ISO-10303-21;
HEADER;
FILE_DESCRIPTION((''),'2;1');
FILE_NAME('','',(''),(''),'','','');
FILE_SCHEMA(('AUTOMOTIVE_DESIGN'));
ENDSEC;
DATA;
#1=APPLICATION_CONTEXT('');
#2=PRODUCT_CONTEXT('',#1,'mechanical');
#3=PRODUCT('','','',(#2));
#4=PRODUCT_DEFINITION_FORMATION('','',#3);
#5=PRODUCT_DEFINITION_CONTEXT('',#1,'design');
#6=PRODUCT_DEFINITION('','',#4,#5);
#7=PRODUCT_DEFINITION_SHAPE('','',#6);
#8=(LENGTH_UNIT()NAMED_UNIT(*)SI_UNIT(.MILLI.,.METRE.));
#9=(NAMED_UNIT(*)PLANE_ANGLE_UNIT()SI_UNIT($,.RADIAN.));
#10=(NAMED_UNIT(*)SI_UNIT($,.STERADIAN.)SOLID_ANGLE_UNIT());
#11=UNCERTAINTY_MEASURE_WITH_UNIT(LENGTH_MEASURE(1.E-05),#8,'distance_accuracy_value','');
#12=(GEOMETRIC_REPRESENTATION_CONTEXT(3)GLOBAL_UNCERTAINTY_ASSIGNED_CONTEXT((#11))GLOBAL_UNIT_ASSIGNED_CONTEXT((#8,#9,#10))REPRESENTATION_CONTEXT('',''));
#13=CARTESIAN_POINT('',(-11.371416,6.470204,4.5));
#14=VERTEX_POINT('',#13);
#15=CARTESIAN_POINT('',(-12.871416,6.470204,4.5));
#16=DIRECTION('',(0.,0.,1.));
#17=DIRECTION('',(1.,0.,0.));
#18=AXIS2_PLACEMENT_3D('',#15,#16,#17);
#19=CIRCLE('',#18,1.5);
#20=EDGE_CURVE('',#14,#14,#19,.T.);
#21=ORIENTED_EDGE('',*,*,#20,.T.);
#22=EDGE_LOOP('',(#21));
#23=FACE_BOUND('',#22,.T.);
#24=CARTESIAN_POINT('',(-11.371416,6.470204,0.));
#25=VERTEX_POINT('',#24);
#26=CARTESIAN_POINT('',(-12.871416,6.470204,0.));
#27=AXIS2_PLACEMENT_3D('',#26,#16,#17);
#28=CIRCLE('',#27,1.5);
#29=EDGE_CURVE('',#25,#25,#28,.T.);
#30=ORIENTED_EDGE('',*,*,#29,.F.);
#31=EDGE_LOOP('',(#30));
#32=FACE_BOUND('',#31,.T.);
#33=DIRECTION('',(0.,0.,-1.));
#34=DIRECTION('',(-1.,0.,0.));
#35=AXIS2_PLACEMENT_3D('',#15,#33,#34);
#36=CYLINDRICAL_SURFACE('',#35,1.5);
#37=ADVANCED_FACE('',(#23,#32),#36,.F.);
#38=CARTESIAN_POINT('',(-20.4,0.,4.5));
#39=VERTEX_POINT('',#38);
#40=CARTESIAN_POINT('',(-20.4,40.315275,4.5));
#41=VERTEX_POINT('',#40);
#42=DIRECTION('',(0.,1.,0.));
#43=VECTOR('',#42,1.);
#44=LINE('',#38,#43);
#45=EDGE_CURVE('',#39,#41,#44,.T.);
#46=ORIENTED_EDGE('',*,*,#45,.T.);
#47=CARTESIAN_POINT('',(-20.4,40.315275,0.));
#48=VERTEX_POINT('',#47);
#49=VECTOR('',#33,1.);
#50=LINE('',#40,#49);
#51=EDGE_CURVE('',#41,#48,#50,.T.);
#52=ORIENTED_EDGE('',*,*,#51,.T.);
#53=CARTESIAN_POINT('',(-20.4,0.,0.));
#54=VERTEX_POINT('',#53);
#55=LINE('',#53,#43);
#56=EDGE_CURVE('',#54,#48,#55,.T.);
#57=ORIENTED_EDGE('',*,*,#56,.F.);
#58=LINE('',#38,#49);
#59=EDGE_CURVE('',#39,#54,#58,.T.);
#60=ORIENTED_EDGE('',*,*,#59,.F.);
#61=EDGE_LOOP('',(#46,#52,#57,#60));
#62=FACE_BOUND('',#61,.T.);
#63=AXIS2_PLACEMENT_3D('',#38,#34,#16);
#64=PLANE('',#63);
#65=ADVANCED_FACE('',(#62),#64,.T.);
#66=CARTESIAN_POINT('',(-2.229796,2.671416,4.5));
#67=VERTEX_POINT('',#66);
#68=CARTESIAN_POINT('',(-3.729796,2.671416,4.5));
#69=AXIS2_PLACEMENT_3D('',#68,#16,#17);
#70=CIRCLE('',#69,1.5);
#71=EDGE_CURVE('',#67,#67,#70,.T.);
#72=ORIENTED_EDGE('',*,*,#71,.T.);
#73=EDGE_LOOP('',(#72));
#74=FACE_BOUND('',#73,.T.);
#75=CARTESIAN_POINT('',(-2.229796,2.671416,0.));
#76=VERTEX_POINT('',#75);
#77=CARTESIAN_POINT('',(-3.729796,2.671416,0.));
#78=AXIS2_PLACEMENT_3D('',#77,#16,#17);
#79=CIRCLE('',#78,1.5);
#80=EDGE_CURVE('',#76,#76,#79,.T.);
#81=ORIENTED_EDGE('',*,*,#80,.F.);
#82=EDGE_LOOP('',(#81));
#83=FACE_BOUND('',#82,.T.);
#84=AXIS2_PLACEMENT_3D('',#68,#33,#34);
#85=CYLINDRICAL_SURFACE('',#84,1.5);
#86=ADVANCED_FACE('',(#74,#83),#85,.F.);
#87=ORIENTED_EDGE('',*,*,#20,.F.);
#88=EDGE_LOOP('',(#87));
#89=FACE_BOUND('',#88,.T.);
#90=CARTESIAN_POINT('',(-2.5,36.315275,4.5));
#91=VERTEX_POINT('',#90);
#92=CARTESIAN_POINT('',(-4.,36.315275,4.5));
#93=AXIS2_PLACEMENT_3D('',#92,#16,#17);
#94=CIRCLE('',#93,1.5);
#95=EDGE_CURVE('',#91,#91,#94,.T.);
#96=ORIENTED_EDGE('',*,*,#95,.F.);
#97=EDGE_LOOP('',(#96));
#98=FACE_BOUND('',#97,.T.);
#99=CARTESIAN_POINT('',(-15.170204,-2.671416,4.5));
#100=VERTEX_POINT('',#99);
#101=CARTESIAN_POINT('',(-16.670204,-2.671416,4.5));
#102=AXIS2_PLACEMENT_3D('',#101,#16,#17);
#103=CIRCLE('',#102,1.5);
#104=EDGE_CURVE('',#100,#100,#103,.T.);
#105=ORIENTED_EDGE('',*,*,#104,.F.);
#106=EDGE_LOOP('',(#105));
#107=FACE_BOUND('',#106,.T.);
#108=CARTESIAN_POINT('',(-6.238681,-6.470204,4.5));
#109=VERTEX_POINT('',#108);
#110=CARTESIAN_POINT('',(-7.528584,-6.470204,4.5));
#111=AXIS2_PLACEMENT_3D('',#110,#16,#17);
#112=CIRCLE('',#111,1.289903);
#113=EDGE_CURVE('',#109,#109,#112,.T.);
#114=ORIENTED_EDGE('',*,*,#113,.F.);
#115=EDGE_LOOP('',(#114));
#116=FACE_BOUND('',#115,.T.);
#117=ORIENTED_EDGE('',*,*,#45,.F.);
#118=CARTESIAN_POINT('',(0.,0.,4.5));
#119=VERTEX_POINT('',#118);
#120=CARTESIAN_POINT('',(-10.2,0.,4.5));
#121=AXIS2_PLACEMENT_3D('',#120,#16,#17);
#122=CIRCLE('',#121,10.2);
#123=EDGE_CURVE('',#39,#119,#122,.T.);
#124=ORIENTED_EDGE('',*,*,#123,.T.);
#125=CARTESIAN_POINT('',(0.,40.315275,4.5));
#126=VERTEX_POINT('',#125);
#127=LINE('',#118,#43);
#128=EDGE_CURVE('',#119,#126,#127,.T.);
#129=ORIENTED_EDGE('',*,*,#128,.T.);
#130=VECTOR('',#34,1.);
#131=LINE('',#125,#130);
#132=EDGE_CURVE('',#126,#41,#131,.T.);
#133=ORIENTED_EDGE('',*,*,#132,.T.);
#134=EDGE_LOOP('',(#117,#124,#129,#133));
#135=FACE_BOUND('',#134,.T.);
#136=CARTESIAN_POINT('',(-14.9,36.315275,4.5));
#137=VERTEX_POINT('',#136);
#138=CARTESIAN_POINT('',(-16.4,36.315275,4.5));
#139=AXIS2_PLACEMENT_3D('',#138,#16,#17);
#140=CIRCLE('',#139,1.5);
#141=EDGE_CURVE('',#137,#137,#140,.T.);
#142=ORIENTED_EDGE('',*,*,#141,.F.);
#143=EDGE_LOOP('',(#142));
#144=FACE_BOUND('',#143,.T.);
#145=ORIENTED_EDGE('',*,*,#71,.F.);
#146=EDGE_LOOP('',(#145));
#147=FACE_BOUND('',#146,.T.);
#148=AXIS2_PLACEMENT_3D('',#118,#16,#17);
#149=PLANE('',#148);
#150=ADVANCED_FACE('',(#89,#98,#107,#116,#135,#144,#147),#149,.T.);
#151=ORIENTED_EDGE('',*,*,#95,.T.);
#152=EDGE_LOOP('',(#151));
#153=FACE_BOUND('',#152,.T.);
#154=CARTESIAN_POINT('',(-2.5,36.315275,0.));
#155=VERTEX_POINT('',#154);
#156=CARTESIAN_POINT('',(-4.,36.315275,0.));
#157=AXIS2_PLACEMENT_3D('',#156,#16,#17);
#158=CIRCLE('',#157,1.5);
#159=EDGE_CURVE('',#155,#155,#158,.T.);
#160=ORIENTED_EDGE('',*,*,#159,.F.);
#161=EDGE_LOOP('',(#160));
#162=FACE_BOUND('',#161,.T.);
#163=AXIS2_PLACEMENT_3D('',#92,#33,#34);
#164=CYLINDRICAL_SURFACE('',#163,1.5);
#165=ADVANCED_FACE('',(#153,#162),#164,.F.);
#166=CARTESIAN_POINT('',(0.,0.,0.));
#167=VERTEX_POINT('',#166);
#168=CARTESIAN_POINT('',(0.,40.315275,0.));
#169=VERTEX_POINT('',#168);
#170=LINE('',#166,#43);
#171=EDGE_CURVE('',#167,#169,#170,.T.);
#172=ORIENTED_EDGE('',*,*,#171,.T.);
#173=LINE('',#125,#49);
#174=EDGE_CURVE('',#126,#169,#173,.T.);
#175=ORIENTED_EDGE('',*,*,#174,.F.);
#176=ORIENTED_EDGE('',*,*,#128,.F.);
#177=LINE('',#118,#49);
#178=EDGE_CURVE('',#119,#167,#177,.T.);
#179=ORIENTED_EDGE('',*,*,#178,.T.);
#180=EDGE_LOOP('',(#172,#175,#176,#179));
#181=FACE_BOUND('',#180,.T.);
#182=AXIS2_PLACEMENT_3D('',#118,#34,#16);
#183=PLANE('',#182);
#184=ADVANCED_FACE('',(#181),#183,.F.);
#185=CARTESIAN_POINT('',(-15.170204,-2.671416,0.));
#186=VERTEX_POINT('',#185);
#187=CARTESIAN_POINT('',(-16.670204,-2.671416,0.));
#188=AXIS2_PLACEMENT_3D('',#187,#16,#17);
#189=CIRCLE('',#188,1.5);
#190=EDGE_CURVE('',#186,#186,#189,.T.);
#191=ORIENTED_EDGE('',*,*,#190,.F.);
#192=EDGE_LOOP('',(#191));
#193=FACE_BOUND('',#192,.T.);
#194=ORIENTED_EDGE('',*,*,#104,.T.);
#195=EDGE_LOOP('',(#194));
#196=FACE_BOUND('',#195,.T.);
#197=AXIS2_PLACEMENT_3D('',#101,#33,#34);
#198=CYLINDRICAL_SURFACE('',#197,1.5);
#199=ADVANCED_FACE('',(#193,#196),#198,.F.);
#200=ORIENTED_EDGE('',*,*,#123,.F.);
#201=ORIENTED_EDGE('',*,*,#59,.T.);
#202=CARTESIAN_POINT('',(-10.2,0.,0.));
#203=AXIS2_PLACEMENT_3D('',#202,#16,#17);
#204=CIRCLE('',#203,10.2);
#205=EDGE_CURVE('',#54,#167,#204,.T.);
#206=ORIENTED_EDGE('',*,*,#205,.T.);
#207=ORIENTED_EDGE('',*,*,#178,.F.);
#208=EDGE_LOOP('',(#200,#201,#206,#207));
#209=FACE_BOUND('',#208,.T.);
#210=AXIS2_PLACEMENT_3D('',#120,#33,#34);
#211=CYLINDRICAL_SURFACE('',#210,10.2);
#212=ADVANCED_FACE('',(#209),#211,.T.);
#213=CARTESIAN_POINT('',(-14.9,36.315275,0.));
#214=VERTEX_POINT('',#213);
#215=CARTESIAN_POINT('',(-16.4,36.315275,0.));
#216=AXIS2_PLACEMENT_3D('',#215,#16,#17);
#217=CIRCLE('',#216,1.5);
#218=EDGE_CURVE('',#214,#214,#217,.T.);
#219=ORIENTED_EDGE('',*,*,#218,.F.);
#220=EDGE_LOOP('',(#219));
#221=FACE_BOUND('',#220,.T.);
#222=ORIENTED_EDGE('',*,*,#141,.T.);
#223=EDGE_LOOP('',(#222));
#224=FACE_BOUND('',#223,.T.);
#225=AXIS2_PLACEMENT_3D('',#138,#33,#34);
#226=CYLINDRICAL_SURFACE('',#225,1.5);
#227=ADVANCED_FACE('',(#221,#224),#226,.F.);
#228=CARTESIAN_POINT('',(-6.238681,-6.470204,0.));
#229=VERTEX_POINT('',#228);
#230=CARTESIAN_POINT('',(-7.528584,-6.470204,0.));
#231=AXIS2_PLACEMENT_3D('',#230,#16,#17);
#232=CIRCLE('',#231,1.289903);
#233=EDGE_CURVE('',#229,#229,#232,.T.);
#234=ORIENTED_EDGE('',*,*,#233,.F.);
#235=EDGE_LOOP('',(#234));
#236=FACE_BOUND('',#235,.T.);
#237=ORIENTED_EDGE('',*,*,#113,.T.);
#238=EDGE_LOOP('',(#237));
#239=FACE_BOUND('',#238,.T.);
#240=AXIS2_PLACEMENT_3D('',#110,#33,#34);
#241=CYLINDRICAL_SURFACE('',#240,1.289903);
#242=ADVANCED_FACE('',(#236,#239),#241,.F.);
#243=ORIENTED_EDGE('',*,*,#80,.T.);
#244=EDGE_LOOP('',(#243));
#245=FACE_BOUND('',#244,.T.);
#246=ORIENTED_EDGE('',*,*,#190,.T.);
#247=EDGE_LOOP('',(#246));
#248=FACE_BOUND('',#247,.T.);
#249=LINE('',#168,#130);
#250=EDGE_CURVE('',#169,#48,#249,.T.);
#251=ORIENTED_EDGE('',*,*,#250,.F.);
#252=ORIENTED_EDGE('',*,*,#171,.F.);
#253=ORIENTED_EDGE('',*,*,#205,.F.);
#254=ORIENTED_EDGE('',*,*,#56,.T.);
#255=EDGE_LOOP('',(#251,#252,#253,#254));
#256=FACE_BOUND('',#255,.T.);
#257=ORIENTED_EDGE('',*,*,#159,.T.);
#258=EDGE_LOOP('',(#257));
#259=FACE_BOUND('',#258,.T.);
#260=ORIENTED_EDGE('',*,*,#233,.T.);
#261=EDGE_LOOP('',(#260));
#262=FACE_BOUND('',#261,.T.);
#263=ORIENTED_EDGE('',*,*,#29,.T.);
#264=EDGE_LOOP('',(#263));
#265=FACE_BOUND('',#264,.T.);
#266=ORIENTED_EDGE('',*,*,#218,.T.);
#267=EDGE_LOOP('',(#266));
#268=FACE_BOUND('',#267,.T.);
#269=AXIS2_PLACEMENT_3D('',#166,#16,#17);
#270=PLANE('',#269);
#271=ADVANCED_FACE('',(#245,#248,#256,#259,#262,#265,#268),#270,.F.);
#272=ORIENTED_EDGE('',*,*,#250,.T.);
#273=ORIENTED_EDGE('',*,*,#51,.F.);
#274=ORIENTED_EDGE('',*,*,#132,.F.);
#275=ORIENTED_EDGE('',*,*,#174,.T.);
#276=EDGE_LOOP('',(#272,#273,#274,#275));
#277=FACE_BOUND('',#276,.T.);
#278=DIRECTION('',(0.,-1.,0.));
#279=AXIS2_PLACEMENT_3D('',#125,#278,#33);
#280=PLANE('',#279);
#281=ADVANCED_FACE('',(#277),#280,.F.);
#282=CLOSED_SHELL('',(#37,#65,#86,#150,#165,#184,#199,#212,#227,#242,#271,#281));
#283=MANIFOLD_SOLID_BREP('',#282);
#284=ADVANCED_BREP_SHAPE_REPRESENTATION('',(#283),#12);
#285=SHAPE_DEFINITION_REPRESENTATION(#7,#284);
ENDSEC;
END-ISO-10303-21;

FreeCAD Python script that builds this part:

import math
import FreeCAD as App
import Part
import Sketcher

V = App.Vector

doc = App.newDocument("Part")
body = doc.addObject("PartDesign::Body", "Body")

sketch1 = body.newObject("Sketcher::SketchObject", "Sketch")
sketch1.AttachmentSupport = (doc.getObject("XY_Plane"), [""])
sketch1.MapMode = "FlatFace"
sketch1.addGeometry([
    Part.LineSegment(V(-20.4, 40.3, 0), V(-20.4, 0, 0)),
    Part.ArcOfCircle(Part.Circle(V(-10.2, 0, 0), V(0, 0, 1), 10.2), math.radians(180), math.radians(360)),
    Part.LineSegment(V(0, 0, 0), V(0, 40.3, 0)),
    Part.LineSegment(V(0, 40.3, 0), V(-20.4, 40.3, 0)),
    Part.Circle(V(-16.4, 36.3, 0), V(0, 0, 1), 1.5),
    Part.Circle(V(-4, 36.3, 0), V(0, 0, 1), 1.5),
    Part.Circle(V(-12.9, 6.5, 0), V(0, 0, 1), 1.5),
    Part.Circle(V(-3.7, 2.7, 0), V(0, 0, 1), 1.5),
    Part.Circle(V(-16.7, -2.7, 0), V(0, 0, 1), 1.5),
    Part.Circle(V(-7.5, -6.5, 0), V(0, 0, 1), 1.3),
], False)
sketch1.addConstraint([
    Sketcher.Constraint("Tangent", 0, 2, 1, 1),
    Sketcher.Constraint("Tangent", 1, 2, 2, 1),
    Sketcher.Constraint("Coincident", 2, 2, 3, 1),
    Sketcher.Constraint("Coincident", 3, 2, 0, 1),
    Sketcher.Constraint("Vertical", 0),
    Sketcher.Constraint("Vertical", 2),
    Sketcher.Constraint("Horizontal", 3),
    Sketcher.Constraint("Coincident", 1, 2, -1, 1),
    Sketcher.Constraint("Equal", 4, 5),
    Sketcher.Constraint("Equal", 5, 6),
    Sketcher.Constraint("Equal", 6, 7),
    Sketcher.Constraint("Equal", 7, 8),
    Sketcher.Constraint("Horizontal", 4, 3, 5, 3),
    Sketcher.Constraint("Diameter", 4, 3.0),
    Sketcher.Constraint("Radius", 1, 10.2),
    Sketcher.Constraint("DistanceX", 5, 3, -1, 1, 4.0),
    Sketcher.Constraint("DistanceY", 5, 3, 2, 2, 4.0),
    Sketcher.Constraint("DistanceX", 3, 2, 4, 3, 4.0),
    Sketcher.Constraint("Diameter", 9, 2.579806),
    Sketcher.Constraint("DistanceY", 0, 2, 0, 1, 40.315275),
    Sketcher.Constraint("DistanceY", 6, 3, 4, 3, 29.845071),
    Sketcher.Constraint("DistanceX", 6, 3, 7, 3, 9.14162),
    Sketcher.Constraint("DistanceY", 7, 3, 5, 3, 33.643859),
    Sketcher.Constraint("DistanceY", 8, 3, 6, 3, 9.14162),
    Sketcher.Constraint("DistanceX", 8, 3, 9, 3, 9.14162),
    Sketcher.Constraint("DistanceY", 9, 3, 7, 3, 9.14162),
    Sketcher.Constraint("DistanceX", 6, 3, -1, 1, 12.871416),
    Sketcher.Constraint("DistanceX", 8, 3, -1, 1, 16.670204),
])
pad1 = body.newObject("PartDesign::Pad", "Pad")
pad1.Profile = sketch1
pad1.Length = 4.5

doc.recompute()
